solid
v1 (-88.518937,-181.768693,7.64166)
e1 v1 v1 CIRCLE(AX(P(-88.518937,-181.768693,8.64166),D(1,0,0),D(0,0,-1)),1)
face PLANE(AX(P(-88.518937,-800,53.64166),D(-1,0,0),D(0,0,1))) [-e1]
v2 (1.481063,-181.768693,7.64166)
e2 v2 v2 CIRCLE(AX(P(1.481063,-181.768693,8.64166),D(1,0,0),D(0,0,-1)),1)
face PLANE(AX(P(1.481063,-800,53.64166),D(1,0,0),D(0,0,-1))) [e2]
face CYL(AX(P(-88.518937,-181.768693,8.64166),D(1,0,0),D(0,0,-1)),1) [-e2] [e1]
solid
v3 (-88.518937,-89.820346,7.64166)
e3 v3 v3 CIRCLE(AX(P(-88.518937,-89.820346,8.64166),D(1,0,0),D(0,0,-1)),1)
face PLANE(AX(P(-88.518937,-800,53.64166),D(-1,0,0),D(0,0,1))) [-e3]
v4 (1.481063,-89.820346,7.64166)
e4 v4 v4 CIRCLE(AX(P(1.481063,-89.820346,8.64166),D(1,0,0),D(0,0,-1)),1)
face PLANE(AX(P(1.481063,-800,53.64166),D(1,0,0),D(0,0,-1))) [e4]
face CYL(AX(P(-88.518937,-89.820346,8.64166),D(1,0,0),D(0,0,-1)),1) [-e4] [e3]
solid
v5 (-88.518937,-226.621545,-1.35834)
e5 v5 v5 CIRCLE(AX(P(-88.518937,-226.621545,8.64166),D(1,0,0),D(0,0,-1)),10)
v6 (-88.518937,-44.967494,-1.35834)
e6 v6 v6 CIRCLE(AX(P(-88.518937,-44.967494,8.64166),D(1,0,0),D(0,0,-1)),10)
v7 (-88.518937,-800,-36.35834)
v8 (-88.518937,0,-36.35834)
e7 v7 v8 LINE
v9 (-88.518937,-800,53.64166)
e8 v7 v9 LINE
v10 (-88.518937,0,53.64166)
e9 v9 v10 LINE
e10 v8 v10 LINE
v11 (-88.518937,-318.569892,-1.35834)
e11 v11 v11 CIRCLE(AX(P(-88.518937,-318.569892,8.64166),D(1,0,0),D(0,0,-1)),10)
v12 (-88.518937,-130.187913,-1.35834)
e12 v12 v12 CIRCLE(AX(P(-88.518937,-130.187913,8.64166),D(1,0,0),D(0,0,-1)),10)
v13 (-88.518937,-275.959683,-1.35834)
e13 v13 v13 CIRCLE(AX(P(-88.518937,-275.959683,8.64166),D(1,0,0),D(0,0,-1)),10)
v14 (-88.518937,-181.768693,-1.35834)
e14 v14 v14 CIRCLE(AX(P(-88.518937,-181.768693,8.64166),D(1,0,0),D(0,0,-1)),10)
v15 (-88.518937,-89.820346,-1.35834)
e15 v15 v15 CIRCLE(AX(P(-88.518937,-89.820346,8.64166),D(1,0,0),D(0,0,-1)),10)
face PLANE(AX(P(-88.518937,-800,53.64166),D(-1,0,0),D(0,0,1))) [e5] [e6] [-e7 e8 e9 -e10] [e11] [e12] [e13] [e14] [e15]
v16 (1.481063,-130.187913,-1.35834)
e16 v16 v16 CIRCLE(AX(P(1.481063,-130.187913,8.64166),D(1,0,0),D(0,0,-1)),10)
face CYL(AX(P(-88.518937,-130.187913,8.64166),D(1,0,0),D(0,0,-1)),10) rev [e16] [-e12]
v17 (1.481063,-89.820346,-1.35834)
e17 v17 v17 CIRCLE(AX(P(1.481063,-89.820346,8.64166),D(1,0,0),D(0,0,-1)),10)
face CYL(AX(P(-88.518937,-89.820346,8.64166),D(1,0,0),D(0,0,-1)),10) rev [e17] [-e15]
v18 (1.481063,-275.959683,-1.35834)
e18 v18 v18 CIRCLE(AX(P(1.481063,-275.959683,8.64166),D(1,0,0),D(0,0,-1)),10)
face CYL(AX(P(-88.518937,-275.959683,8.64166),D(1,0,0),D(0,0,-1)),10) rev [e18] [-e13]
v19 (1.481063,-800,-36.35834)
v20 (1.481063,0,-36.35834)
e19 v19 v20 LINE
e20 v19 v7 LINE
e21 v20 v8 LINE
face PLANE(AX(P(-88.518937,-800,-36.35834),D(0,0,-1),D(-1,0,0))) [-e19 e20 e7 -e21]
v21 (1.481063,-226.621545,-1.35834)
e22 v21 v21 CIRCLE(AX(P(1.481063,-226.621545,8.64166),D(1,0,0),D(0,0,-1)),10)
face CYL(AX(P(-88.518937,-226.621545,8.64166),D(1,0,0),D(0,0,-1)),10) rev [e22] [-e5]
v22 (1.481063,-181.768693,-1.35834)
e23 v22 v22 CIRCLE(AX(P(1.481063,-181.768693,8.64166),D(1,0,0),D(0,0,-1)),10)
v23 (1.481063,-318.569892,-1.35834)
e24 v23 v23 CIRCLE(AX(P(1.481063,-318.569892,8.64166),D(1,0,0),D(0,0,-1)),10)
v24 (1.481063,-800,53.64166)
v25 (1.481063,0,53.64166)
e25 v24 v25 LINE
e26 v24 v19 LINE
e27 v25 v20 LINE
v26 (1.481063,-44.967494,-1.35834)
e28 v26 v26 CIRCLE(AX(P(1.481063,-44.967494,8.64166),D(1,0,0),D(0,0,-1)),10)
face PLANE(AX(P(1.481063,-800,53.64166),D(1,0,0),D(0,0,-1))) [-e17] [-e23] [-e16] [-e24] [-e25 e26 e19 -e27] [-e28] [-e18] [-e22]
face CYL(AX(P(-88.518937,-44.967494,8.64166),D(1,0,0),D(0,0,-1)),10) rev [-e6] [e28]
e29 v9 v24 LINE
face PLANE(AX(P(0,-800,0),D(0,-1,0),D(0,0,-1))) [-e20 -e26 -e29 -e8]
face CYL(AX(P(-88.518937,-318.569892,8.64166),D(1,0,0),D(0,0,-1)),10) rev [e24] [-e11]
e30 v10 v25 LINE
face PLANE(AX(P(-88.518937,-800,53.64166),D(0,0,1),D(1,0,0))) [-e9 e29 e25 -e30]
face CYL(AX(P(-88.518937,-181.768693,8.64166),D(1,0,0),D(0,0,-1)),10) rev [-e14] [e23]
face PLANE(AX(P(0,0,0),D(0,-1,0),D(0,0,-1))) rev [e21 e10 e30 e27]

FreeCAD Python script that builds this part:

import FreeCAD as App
import Part
import Sketcher
Q = App.Units.Quantity

doc = App.newDocument("Part")
body = doc.addObject("PartDesign::Body", "Body")
body.AllowCompound = True

# Sketch on XZ plane
sketch1 = body.newObject("Sketcher::SketchObject", "Sketch")
sketch1.AttachmentSupport = (doc.getObject("XZ_Plane"), [""])
sketch1.MapMode = "FlatFace"
sketch1.addGeometry(Part.LineSegment(App.Vector(-89, -36, 0), App.Vector(-89, 54, 0)), False)
sketch1.addGeometry(Part.LineSegment(App.Vector(-89, 54, 0), App.Vector(1, 54, 0)), False)
sketch1.addGeometry(Part.LineSegment(App.Vector(1, 54, 0), App.Vector(1, -36, 0)), False)
sketch1.addGeometry(Part.LineSegment(App.Vector(1, -36, 0), App.Vector(-89, -36, 0)), False)
sketch1.addConstraint(Sketcher.Constraint("Coincident", 0, 2, 1, 1))
sketch1.addConstraint(Sketcher.Constraint("Coincident", 1, 2, 2, 1))
sketch1.addConstraint(Sketcher.Constraint("Coincident", 2, 2, 3, 1))
sketch1.addConstraint(Sketcher.Constraint("Coincident", 3, 2, 0, 1))
sketch1.addConstraint(Sketcher.Constraint("Vertical", 0))
sketch1.addConstraint(Sketcher.Constraint("Horizontal", 1))
sketch1.addConstraint(Sketcher.Constraint("Vertical", 2))
sketch1.addConstraint(Sketcher.Constraint("Horizontal", 3))
sketch1.addConstraint(Sketcher.Constraint("Equal", 3, 0))
sketch1.addConstraint(Sketcher.Constraint("DistanceX", 1, 1, 1, 2, Q("90 mm")))
sketch1.addConstraint(Sketcher.Constraint("DistanceY", -1, 1, 0, 2, Q("53.64166 mm")))
sketch1.addConstraint(Sketcher.Constraint("DistanceX", 0, 2, -1, 1, Q("88.518937 mm")))
pad1 = body.newObject("PartDesign::Pad", "Pad")
pad1.Profile = sketch1
pad1.Length = 800

# Sketch on YZ plane
sketch2 = body.newObject("Sketcher::SketchObject", "Sketch001")
sketch2.AttachmentSupport = (doc.getObject("YZ_Plane"), [""])
sketch2.MapMode = "FlatFace"
sketch2.AttachmentOffset = App.Placement(App.Vector(0, 0, 1.481063), App.Rotation())
sketch2.addGeometry(Part.Circle(App.Vector(-45, 8.6, 0), App.Vector(0, 0, 1), 10), False)
sketch2.addGeometry(Part.Circle(App.Vector(-130.2, 8.6, 0), App.Vector(0, 0, 1), 10), False)
sketch2.addGeometry(Part.Circle(App.Vector(-226.6, 8.6, 0), App.Vector(0, 0, 1), 10), False)
sketch2.addGeometry(Part.Circle(App.Vector(-276, 8.6, 0), App.Vector(0, 0, 1), 10), False)
sketch2.addGeometry(Part.Circle(App.Vector(-318.6, 8.6, 0), App.Vector(0, 0, 1), 10), False)
sketch2.addGeometry(Part.Circle(App.Vector(-181.8, 8.6, 0), App.Vector(0, 0, 1), 10), False)
sketch2.addGeometry(Part.Circle(App.Vector(-181.8, 8.6, 0), App.Vector(0, 0, 1), 1), False)
sketch2.addGeometry(Part.Circle(App.Vector(-89.8, 8.6, 0), App.Vector(0, 0, 1), 10), False)
sketch2.addGeometry(Part.Circle(App.Vector(-89.8, 8.6, 0), App.Vector(0, 0, 1), 1), False)
sketch2.addConstraint(Sketcher.Constraint("Coincident", 6, 3, 5, 3))
sketch2.addConstraint(Sketcher.Constraint("Coincident", 8, 3, 7, 3))
sketch2.addConstraint(Sketcher.Constraint("Equal", 0, 1))
sketch2.addConstraint(Sketcher.Constraint("Equal", 1, 2))
sketch2.addConstraint(Sketcher.Constraint("Equal", 2, 3))
sketch2.addConstraint(Sketcher.Constraint("Equal", 3, 4))
sketch2.addConstraint(Sketcher.Constraint("Equal", 4, 5))
sketch2.addConstraint(Sketcher.Constraint("Equal", 5, 7))
sketch2.addConstraint(Sketcher.Constraint("Equal", 6, 8))
sketch2.addConstraint(Sketcher.Constraint("Horizontal", 0, 3, 1, 3))
sketch2.addConstraint(Sketcher.Constraint("Horizontal", 1, 3, 2, 3))
sketch2.addConstraint(Sketcher.Constraint("Horizontal", 2, 3, 3, 3))
sketch2.addConstraint(Sketcher.Constraint("Horizontal", 3, 3, 4, 3))
sketch2.addConstraint(Sketcher.Constraint("Horizontal", 4, 3, 5, 3))
sketch2.addConstraint(Sketcher.Constraint("Horizontal", 6, 3, 7, 3))
sketch2.addConstraint(Sketcher.Constraint("Diameter", 0, Q("20 mm")))
sketch2.addConstraint(Sketcher.Constraint("Diameter", 6, Q("2 mm")))
sketch2.addConstraint(Sketcher.Constraint("DistanceX", 4, 3, 0, 3, Q("273.602398 mm")))
sketch2.addConstraint(Sketcher.Constraint("DistanceX", 5, 3, 0, 3, Q("136.801199 mm")))
sketch2.addConstraint(Sketcher.Constraint("DistanceX", 2, 3, 7, 3, Q("136.801199 mm")))
sketch2.addConstraint(Sketcher.Constraint("DistanceY", -1, 1, 0, 3, Q("8.64166 mm")))
sketch2.addConstraint(Sketcher.Constraint("DistanceX", 1, 3, 0, 3, Q("85.220419 mm")))
sketch2.addConstraint(Sketcher.Constraint("DistanceX", 2, 3, 0, 3, Q("181.654051 mm")))
sketch2.addConstraint(Sketcher.Constraint("DistanceX", 3, 3, 1, 3, Q("145.771769 mm")))
sketch2.addConstraint(Sketcher.Constraint("DistanceX", 0, 3, -1, 1, Q("44.967494 mm")))
pocket1 = body.newObject("PartDesign::Pocket", "Pocket")
pocket1.Profile = sketch2
pocket1.Type = "ThroughAll"

doc.recompute()
